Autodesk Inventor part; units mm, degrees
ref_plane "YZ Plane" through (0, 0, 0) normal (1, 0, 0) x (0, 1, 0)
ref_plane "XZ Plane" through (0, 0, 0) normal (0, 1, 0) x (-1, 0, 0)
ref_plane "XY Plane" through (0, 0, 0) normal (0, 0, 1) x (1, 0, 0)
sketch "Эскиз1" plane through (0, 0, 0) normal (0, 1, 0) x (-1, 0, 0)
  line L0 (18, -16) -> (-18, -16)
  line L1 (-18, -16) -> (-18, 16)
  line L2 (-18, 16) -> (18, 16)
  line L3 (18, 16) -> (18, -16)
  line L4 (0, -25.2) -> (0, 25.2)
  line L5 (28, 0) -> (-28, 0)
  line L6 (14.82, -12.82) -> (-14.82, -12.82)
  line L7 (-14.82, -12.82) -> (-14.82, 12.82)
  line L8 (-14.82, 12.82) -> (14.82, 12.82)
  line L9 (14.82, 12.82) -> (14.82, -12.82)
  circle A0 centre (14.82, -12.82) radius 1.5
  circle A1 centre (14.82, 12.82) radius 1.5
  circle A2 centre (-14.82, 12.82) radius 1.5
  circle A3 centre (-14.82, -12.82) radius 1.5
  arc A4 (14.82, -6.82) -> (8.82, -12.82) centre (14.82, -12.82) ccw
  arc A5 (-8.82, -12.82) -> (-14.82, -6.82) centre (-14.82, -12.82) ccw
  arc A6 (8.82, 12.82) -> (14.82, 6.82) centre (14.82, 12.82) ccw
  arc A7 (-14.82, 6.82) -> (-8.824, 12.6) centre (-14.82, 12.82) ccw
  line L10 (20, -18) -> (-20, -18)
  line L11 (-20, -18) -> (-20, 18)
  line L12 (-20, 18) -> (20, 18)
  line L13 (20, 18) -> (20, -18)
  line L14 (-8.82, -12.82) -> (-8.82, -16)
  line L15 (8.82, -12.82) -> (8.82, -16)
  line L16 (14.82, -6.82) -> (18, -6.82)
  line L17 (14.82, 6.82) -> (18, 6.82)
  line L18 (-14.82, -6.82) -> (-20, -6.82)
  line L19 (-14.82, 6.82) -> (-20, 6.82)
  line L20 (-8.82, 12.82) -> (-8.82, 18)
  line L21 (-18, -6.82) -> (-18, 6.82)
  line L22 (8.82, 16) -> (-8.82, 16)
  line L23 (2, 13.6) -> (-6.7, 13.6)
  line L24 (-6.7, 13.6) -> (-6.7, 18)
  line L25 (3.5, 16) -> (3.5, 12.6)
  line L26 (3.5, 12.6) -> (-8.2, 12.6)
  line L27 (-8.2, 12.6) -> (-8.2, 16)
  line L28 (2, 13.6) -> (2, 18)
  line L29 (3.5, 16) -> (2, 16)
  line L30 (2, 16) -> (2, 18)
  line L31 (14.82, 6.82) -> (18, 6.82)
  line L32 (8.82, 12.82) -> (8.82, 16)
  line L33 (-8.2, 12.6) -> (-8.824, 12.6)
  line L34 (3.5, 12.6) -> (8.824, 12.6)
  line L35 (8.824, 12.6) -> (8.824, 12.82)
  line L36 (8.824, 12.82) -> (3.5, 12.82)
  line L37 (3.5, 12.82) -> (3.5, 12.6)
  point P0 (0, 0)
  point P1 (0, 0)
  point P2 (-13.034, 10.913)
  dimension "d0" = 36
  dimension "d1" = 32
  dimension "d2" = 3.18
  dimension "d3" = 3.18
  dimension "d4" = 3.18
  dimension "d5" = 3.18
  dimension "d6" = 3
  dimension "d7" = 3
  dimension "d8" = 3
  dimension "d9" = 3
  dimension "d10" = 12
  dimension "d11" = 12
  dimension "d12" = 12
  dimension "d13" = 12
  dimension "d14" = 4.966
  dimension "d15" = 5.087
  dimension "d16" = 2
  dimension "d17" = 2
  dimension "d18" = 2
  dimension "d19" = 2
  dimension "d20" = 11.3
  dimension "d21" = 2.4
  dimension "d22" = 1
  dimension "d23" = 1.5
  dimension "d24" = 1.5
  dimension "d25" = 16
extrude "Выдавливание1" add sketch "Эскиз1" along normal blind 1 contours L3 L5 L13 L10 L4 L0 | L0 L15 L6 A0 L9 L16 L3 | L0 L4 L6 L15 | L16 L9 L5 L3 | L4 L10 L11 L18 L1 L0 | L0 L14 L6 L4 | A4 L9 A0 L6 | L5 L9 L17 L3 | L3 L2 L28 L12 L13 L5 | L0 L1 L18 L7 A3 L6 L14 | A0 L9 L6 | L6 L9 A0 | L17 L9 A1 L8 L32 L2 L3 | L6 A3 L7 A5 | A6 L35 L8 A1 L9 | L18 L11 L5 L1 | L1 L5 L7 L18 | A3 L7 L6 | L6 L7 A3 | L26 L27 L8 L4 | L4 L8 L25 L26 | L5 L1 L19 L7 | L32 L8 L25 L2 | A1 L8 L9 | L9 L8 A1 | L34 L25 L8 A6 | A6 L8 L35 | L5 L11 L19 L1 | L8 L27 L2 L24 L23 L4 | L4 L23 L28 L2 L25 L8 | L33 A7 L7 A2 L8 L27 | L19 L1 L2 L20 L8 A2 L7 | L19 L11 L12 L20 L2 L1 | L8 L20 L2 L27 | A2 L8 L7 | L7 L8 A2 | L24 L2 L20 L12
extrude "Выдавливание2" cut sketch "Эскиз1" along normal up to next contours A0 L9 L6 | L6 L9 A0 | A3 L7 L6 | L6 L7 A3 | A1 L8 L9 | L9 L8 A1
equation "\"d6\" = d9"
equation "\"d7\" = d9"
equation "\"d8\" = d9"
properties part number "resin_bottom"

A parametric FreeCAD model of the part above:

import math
import FreeCAD as App
import Part
import Sketcher
from FreeCAD import Vector


def add_polygon(sketch, points):
    """Adds a closed chain of lines whose ends are joined by coincident constraints."""
    first, n = sketch.GeometryCount, len(points)
    for a, b in zip(points, points[1:] + points[:1]):
        sketch.addGeometry(Part.LineSegment(App.Vector(*a, 0), App.Vector(*b, 0)), False)
    for i in range(n):
        sketch.addConstraint(Sketcher.Constraint("Coincident", first + i, 2, first + (i + 1) % n, 1))

doc = App.newDocument("Part")
body = doc.addObject("PartDesign::Body", "Body")

sketch1 = body.newObject("Sketcher::SketchObject", "Sketch")
sketch1.AttachmentSupport = (doc.getObject("XZ_Plane"), [""])
sketch1.MapMode = "FlatFace"
add_polygon(sketch1, [(-20, -18), (-20, 18), (-2, 18), (-2, 13.6), (6.7, 13.6), (6.7, 18), (20, 18), (20, -18)])
sketch1.addGeometry(Part.ArcOfCircle(Part.Circle(Vector(-14.8, -12.8, 0), Vector(0, 0, 1), 6), math.radians(0), math.radians(90)), False)
sketch1.addGeometry(Part.LineSegment(Vector(-8.8, -12.8, 0), Vector(8.8, -12.8, 0)), False)
sketch1.addGeometry(Part.ArcOfCircle(Part.Circle(Vector(14.8, -12.8, 0), Vector(0, 0, 1), 6), math.radians(90), math.radians(180)), False)
sketch1.addGeometry(Part.LineSegment(Vector(14.8, -6.8, 0), Vector(14.8, 6.8, 0)), False)
sketch1.addGeometry(Part.ArcOfCircle(Part.Circle(Vector(14.8, 12.8, 0), Vector(0, 0, 1), 6), math.radians(-178), math.radians(-90)), False)
sketch1.addGeometry(Part.LineSegment(Vector(8.8, 12.6, 0), Vector(-8.8, 12.6, 0)), False)
sketch1.addGeometry(Part.ArcOfCircle(Part.Circle(Vector(-14.8, 12.8, 0), Vector(0, 0, 1), 6), math.radians(-90), math.radians(-2)), False)
sketch1.addGeometry(Part.LineSegment(Vector(-14.8, 6.8, 0), Vector(-14.8, -6.8, 0)), False)
sketch1.addConstraint(Sketcher.Constraint("Coincident", 8, 1, 9, 1))
sketch1.addConstraint(Sketcher.Constraint("Coincident", 9, 2, 10, 2))
sketch1.addConstraint(Sketcher.Constraint("Coincident", 10, 1, 11, 1))
sketch1.addConstraint(Sketcher.Constraint("Coincident", 11, 2, 12, 2))
sketch1.addConstraint(Sketcher.Constraint("Coincident", 12, 1, 13, 1))
sketch1.addConstraint(Sketcher.Constraint("Coincident", 13, 2, 14, 2))
sketch1.addConstraint(Sketcher.Constraint("Coincident", 14, 1, 15, 1))
sketch1.addConstraint(Sketcher.Constraint("Coincident", 15, 2, 8, 2))
sketch1.addConstraint(Sketcher.Constraint("Vertical", 0))
sketch1.addConstraint(Sketcher.Constraint("Horizontal", 1))
sketch1.addConstraint(Sketcher.Constraint("Vertical", 2))
sketch1.addConstraint(Sketcher.Constraint("Horizontal", 3))
sketch1.addConstraint(Sketcher.Constraint("Vertical", 4))
sketch1.addConstraint(Sketcher.Constraint("Horizontal", 5))
sketch1.addConstraint(Sketcher.Constraint("Vertical", 6))
sketch1.addConstraint(Sketcher.Constraint("Horizontal", 7))
sketch1.addConstraint(Sketcher.Constraint("Horizontal", 9))
sketch1.addConstraint(Sketcher.Constraint("Vertical", 11))
sketch1.addConstraint(Sketcher.Constraint("Horizontal", 13))
sketch1.addConstraint(Sketcher.Constraint("Vertical", 15))
sketch1.addConstraint(Sketcher.Constraint("Equal", 8, 10))
sketch1.addConstraint(Sketcher.Constraint("Equal", 10, 12))
sketch1.addConstraint(Sketcher.Constraint("Equal", 12, 14))
sketch1.addConstraint(Sketcher.Constraint("Symmetric", 8, 3, 12, 3, -1, 1))
sketch1.addConstraint(Sketcher.Constraint("Symmetric", 10, 3, 14, 3, -1, 1))
sketch1.addConstraint(Sketcher.Constraint("Symmetric", 0, 2, 6, 2, -1, 1))
sketch1.addConstraint(Sketcher.Constraint("Symmetric", 8, 3, 10, 3, -2))
sketch1.addConstraint(Sketcher.Constraint("Horizontal", 1, 2, 4, 2))
sketch1.addConstraint(Sketcher.Constraint("Horizontal", 10, 3, 8, 1))
sketch1.addConstraint(Sketcher.Constraint("Vertical", 12, 3, 10, 1))
sketch1.addConstraint(Sketcher.Constraint("Vertical", 8, 3, 14, 1))
sketch1.addConstraint(Sketcher.Constraint("Radius", 8, 6.0))
sketch1.addConstraint(Sketcher.Constraint("DistanceY", 0, 1, 0, 2, 36.0))
sketch1.addConstraint(Sketcher.Constraint("DistanceX", 1, 2, -1, 1, 2.0))
sketch1.addConstraint(Sketcher.Constraint("DistanceY", 12, 1, 3, 2, 1.0))
sketch1.addConstraint(Sketcher.Constraint("DistanceX", 1, 1, 1, 2, 18.0))
sketch1.addConstraint(Sketcher.Constraint("DistanceX", 3, 1, 3, 2, 8.7))
sketch1.addConstraint(Sketcher.Constraint("DistanceY", 2, 2, 2, 1, 4.4))
sketch1.addConstraint(Sketcher.Constraint("DistanceX", 9, 1, 9, 2, 17.64))
sketch1.addConstraint(Sketcher.Constraint("DistanceY", 11, 1, 11, 2, 13.64))
pad1 = body.newObject("PartDesign::Pad", "Pad")
pad1.Profile = sketch1
pad1.Length = 1
pad1.Reversed = True

sketch2 = body.newObject("Sketcher::SketchObject", "Sketch001")
sketch2.AttachmentSupport = (doc.getObject("XZ_Plane"), [""])
sketch2.MapMode = "FlatFace"
sketch2.addGeometry(Part.Circle(Vector(-14.8, -12.8, 0), Vector(0, 0, 1), 1.5), False)
sketch2.addGeometry(Part.Circle(Vector(14.8, -12.8, 0), Vector(0, 0, 1), 1.5), False)
sketch2.addGeometry(Part.Circle(Vector(-14.8, 12.8, 0), Vector(0, 0, 1), 1.5), False)
sketch2.addConstraint(Sketcher.Constraint("Equal", 0, 1))
sketch2.addConstraint(Sketcher.Constraint("Equal", 1, 2))
sketch2.addConstraint(Sketcher.Constraint("Symmetric", 1, 3, 2, 3, -1, 1))
sketch2.addConstraint(Sketcher.Constraint("Symmetric", 0, 3, 1, 3, -2))
sketch2.addConstraint(Sketcher.Constraint("Diameter", 0, 3.0))
sketch2.addConstraint(Sketcher.Constraint("DistanceX", 0, 3, -1, 1, 14.82))
sketch2.addConstraint(Sketcher.Constraint("DistanceY", 0, 3, -1, 1, 12.82))
pocket1 = body.newObject("PartDesign::Pocket", "Pocket")
pocket1.Profile = sketch2
pocket1.Length = 1

doc.recompute()
